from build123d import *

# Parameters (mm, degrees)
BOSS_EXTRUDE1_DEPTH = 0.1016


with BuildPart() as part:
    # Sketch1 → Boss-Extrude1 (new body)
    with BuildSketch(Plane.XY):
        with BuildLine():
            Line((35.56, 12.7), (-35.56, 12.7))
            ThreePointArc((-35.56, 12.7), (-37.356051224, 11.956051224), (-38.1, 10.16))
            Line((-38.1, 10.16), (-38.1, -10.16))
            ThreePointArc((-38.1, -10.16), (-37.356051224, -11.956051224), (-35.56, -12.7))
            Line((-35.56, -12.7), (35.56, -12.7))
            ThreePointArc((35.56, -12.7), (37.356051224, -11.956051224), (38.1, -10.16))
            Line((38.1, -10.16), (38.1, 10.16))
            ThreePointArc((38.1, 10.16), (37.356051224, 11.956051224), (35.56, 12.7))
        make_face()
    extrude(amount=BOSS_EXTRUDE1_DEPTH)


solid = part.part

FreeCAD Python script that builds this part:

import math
import FreeCAD as App
import Part
import Sketcher
from FreeCAD import Vector
Q = App.Units.Quantity

doc = App.newDocument("Part")
body = doc.addObject("PartDesign::Body", "Body")

sketch1 = body.newObject("Sketcher::SketchObject", "Sketch")
sketch1.AttachmentSupport = (doc.getObject("XY_Plane"), [""])
sketch1.MapMode = "FlatFace"
sketch1.addGeometry(Part.LineSegment(Vector(35.6, 12.7, 0), Vector(-35.6, 12.7, 0)), False)
sketch1.addGeometry(Part.ArcOfCircle(Part.Circle(Vector(-35.6, 10.2, 0), Vector(0, 0, 1), 2.5), math.radians(90), math.radians(180)), False)
sketch1.addGeometry(Part.LineSegment(Vector(-38.1, 10.2, 0), Vector(-38.1, -10.2, 0)), False)
sketch1.addGeometry(Part.ArcOfCircle(Part.Circle(Vector(-35.6, -10.2, 0), Vector(0, 0, 1), 2.5), math.radians(-180), math.radians(-90)), False)
sketch1.addGeometry(Part.LineSegment(Vector(-35.6, -12.7, 0), Vector(35.6, -12.7, 0)), False)
sketch1.addGeometry(Part.ArcOfCircle(Part.Circle(Vector(35.6, -10.2, 0), Vector(0, 0, 1), 2.5), math.radians(-90), math.radians(0)), False)
sketch1.addGeometry(Part.LineSegment(Vector(38.1, -10.2, 0), Vector(38.1, 10.2, 0)), False)
sketch1.addGeometry(Part.ArcOfCircle(Part.Circle(Vector(35.6, 10.2, 0), Vector(0, 0, 1), 2.5), math.radians(0), math.radians(90)), False)
sketch1.addConstraint(Sketcher.Constraint("Tangent", 0, 2, 1, 1))
sketch1.addConstraint(Sketcher.Constraint("Tangent", 1, 2, 2, 1))
sketch1.addConstraint(Sketcher.Constraint("Tangent", 2, 2, 3, 1))
sketch1.addConstraint(Sketcher.Constraint("Tangent", 3, 2, 4, 1))
sketch1.addConstraint(Sketcher.Constraint("Tangent", 4, 2, 5, 1))
sketch1.addConstraint(Sketcher.Constraint("Tangent", 5, 2, 6, 1))
sketch1.addConstraint(Sketcher.Constraint("Tangent", 6, 2, 7, 1))
sketch1.addConstraint(Sketcher.Constraint("Tangent", 7, 2, 0, 1))
sketch1.addConstraint(Sketcher.Constraint("Horizontal", 0))
sketch1.addConstraint(Sketcher.Constraint("Vertical", 2))
sketch1.addConstraint(Sketcher.Constraint("Horizontal", 4))
sketch1.addConstraint(Sketcher.Constraint("Vertical", 6))
sketch1.addConstraint(Sketcher.Constraint("Equal", 1, 3))
sketch1.addConstraint(Sketcher.Constraint("Equal", 3, 5))
sketch1.addConstraint(Sketcher.Constraint("Equal", 5, 7))
sketch1.addConstraint(Sketcher.Constraint("Symmetric", 1, 3, 5, 3, -1, 1))
sketch1.addConstraint(Sketcher.Constraint("Radius", 1, Q("0.1 in")))
sketch1.addConstraint(Sketcher.Constraint("DistanceX", 0, 2, 0, 1, Q("2.8 in")))
sketch1.addConstraint(Sketcher.Constraint("DistanceY", 2, 2, 2, 1, Q("0.8 in")))
pad1 = body.newObject("PartDesign::Pad", "Pad")
pad1.Profile = sketch1
pad1.Length = Q("0.004 in")

doc.recompute()
